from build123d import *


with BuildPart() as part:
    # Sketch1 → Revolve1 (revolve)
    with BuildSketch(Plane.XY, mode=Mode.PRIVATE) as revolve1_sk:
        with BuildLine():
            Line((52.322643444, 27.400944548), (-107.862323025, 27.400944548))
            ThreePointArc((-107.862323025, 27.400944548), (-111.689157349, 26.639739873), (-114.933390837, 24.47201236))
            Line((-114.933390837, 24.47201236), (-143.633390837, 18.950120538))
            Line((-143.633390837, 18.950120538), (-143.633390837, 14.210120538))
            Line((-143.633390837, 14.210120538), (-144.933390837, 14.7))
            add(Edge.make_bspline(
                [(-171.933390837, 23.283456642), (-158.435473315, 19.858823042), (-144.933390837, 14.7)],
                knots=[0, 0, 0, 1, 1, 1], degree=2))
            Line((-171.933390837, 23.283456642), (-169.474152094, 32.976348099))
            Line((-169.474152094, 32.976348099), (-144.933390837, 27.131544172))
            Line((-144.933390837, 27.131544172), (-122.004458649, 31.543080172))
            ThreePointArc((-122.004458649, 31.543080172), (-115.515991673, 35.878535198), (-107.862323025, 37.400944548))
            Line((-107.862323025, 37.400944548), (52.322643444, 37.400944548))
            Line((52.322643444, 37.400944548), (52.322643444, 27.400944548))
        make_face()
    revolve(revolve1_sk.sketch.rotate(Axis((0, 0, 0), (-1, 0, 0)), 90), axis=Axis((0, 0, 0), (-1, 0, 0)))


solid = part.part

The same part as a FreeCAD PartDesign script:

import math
import FreeCAD as App
import Part
import Sketcher
from FreeCAD import Vector
Q = App.Units.Quantity

doc = App.newDocument("Part")
body = doc.addObject("PartDesign::Body", "Body")

sketch1 = body.newObject("Sketcher::SketchObject", "Sketch")
sketch1.AttachmentSupport = (doc.getObject("XY_Plane"), [""])
sketch1.MapMode = "FlatFace"
sketch1.addGeometry([
    Part.LineSegment(Vector(-107.862323, 27.400945, 0), Vector(52.322643, 27.400945, 0)),
    Part.LineSegment(Vector(52.322643, 27.400945, 0), Vector(52.322643, 37.400945, 0)),
    Part.LineSegment(Vector(52.322643, 37.400945, 0), Vector(-107.862323, 37.400945, 0)),
    Part.ArcOfCircle(Part.Circle(Vector(-107.862323, 17.400945, 0), Vector(0, 0, 1), 20), math.radians(90), math.radians(135)),
    Part.LineSegment(Vector(-122.004459, 31.54308, 0), Vector(-144.933391, 27.131544, 0)),
    Part.LineSegment(Vector(-144.933391, 27.131544, 0), Vector(-169.474152, 32.976348, 0)),
    Part.LineSegment(Vector(-169.474152, 32.976348, 0), Vector(-171.933391, 23.283457, 0)),
    Part.BSplineCurve([Vector(-171.933391, 23.283457, 0), Vector(-158.435473, 19.858823, 0), Vector(-144.933391, 14.7, 0)], [3, 3], [0, 1], False, 2, [1, 1, 1], False),
    Part.LineSegment(Vector(-144.933391, 14.7, 0), Vector(-143.633391, 14.210121, 0)),
    Part.LineSegment(Vector(-143.633391, 14.210121, 0), Vector(-143.633391, 18.950121, 0)),
    Part.LineSegment(Vector(-143.633391, 18.950121, 0), Vector(-114.933391, 24.472012, 0)),
    Part.ArcOfCircle(Part.Circle(Vector(-107.862323, 17.400945, 0), Vector(0, 0, 1), 10), math.radians(90), math.radians(135)),
], False)
sketch1.addConstraint([
    Sketcher.Constraint("Block", 7),
    Sketcher.Constraint("Coincident", 0, 2, 1, 1),
    Sketcher.Constraint("Coincident", 1, 2, 2, 1),
    Sketcher.Constraint("Coincident", 2, 2, 3, 1),
    Sketcher.Constraint("Coincident", 3, 2, 4, 1),
    Sketcher.Constraint("Coincident", 4, 2, 5, 1),
    Sketcher.Constraint("Coincident", 5, 2, 6, 1),
    Sketcher.Constraint("Coincident", 6, 2, 7, 1),
    Sketcher.Constraint("Coincident", 7, 2, 8, 1),
    Sketcher.Constraint("Coincident", 8, 2, 9, 1),
    Sketcher.Constraint("Coincident", 9, 2, 10, 1),
    Sketcher.Constraint("Coincident", 10, 2, 11, 2),
    Sketcher.Constraint("Coincident", 11, 1, 0, 1),
    Sketcher.Constraint("Horizontal", 0),
    Sketcher.Constraint("Vertical", 1),
    Sketcher.Constraint("Horizontal", 2),
    Sketcher.Constraint("Vertical", 9),
    Sketcher.Constraint("Coincident", 11, 3, 3, 3),
    Sketcher.Constraint("Radius", 3, Q("20 mm")),
    Sketcher.Constraint("Radius", 11, Q("10 mm")),
    Sketcher.Constraint("Distance", 6, Q("10 mm")),
    Sketcher.Constraint("DistanceX", 6, 2, 4, 2, Q("27 mm")),
    Sketcher.Constraint("DistanceY", 9, 1, 9, 2, Q("4.74 mm")),
    Sketcher.Constraint("DistanceX", 4, 2, 8, 2, Q("1.3 mm")),
    Sketcher.Constraint("DistanceX", 9, 2, 10, 2, Q("28.7 mm")),
    Sketcher.Constraint("DistanceY", 11, 3, 4, 2, Q("9.7306 mm")),
    Sketcher.Constraint("Distance", 5, Q("25.227182 mm")),
    Sketcher.Constraint("Distance", 10, Q("29.22638 mm")),
    Sketcher.Constraint("DistanceX", 0, 1, 0, 2, Q("160.184966 mm")),
    Sketcher.Constraint("DistanceX", 2, 2, 2, 1, Q("160.184966 mm")),
    Sketcher.Constraint("DistanceX", 3, 2, -1, 1, Q("122.004459 mm")),
    Sketcher.Constraint("DistanceY", -1, 1, 3, 2, Q("31.54308 mm")),
    Sketcher.Constraint("DistanceY", -1, 1, 5, 2, Q("32.976348 mm")),
    Sketcher.Constraint("DistanceX", 5, 2, 2, 2, Q("61.611829 mm")),
])
revolution = body.newObject("PartDesign::Revolution", "Revolution")
revolution.Profile = sketch1
revolution.ReferenceAxis = (sketch1, ["H_Axis"])
revolution.Angle = 360

doc.recompute()
